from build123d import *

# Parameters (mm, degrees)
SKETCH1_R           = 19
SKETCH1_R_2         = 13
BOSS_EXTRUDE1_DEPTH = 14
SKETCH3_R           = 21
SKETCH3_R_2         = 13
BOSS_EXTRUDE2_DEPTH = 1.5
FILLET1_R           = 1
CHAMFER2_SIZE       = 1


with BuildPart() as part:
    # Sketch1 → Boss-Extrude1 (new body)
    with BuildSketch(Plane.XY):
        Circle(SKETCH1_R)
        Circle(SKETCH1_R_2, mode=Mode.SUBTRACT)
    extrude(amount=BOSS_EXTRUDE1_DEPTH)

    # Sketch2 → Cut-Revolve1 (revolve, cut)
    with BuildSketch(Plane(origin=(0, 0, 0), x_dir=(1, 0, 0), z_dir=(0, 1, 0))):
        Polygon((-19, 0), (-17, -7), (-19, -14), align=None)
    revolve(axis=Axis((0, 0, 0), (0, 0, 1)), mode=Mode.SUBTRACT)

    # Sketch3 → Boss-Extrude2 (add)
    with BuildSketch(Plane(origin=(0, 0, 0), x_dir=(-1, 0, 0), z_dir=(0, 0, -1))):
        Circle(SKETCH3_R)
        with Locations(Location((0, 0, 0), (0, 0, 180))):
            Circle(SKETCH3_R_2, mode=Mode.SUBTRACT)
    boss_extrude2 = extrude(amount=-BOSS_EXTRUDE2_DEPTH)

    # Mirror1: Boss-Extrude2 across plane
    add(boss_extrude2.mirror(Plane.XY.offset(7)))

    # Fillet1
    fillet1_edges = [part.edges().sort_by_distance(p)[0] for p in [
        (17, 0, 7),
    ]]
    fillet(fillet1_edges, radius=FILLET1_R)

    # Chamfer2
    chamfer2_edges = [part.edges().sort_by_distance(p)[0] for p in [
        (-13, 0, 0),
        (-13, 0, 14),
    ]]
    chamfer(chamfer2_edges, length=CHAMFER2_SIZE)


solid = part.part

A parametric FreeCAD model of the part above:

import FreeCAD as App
import Part
import Sketcher

V = App.Vector


def edges_at(feature, points):
    """Names of the edges that pass closest to the given points."""
    edges = feature.Shape.Edges
    near = lambda p: min(range(len(edges)), key=lambda i: edges[i].distToShape(Part.Vertex(*p))[0])
    return sorted({f"Edge{near(p) + 1}" for p in points})

doc = App.newDocument("Part")
body = doc.addObject("PartDesign::Body", "Body")

sketch1 = doc.addObject("Sketcher::SketchObject", "Sketch")
body.addObject(sketch1)
sketch1.AttachmentSupport = (doc.XY_Plane, [""])
sketch1.MapMode = "FlatFace"
sketch1.addGeometry([
    Part.Circle(V(0, 0, 0), V(0, 0, 1), 19),
    Part.Circle(V(0, 0, 0), V(0, 0, 1), 13),
], False)
sketch1.addConstraint([
    Sketcher.Constraint("Coincident", 0, 3, -1, 1),
    Sketcher.Constraint("Coincident", 1, 3, -1, 1),
    Sketcher.Constraint("Diameter", 0, 38.0),
    Sketcher.Constraint("Diameter", 1, 26.0),
])
pad1 = doc.addObject("PartDesign::Pad", "Pad")
body.addObject(pad1)
pad1.Profile = sketch1
pad1.Length = 14

sketch2 = doc.addObject("Sketcher::SketchObject", "Sketch001")
body.addObject(sketch2)
sketch2.AttachmentSupport = (doc.XZ_Plane, [""])
sketch2.MapMode = "FlatFace"
sketch2.addGeometry([
    Part.LineSegment(V(-17, 7, 0), V(-19, 0, 0)),
    Part.LineSegment(V(-19, 0, 0), V(-19, 14, 0)),
    Part.LineSegment(V(-19, 14, 0), V(-17, 7, 0)),
], False)
sketch2.addConstraint([
    Sketcher.Constraint("Coincident", 0, 2, 1, 1),
    Sketcher.Constraint("Coincident", 1, 2, 2, 1),
    Sketcher.Constraint("Coincident", 2, 2, 0, 1),
    Sketcher.Constraint("Vertical", 1),
    Sketcher.Constraint("PointOnObject", 0, 2, -1),
    Sketcher.Constraint("Equal", 0, 2),
    Sketcher.Constraint("DistanceY", 1, 1, 1, 2, 14.0),
    Sketcher.Constraint("DistanceX", 0, 2, -1, 1, 19.0),
    Sketcher.Constraint("DistanceX", 2, 2, -1, 1, 17.0),
])
groove = doc.addObject("PartDesign::Groove", "Groove")
body.addObject(groove)
groove.Profile = sketch2
groove.ReferenceAxis = (sketch2, ["V_Axis"])
groove.Angle = 360

sketch3 = doc.addObject("Sketcher::SketchObject", "Sketch002")
body.addObject(sketch3)
sketch3.AttachmentSupport = (doc.XY_Plane, [""])
sketch3.MapMode = "FlatFace"
sketch3.addGeometry([
    Part.Circle(V(0, 0, 0), V(0, 0, 1), 21),
    Part.Circle(V(0, 0, 0), V(0, 0, 1), 13),
], False)
sketch3.addConstraint([
    Sketcher.Constraint("Coincident", 0, 3, -1, 1),
    Sketcher.Constraint("Coincident", 1, 3, -1, 1),
    Sketcher.Constraint("Diameter", 0, 42.0),
    Sketcher.Constraint("Diameter", 1, 26.0),
])
pad2 = doc.addObject("PartDesign::Pad", "Pad001")
body.addObject(pad2)
pad2.Profile = sketch3
pad2.Length = 1.5
doc.recompute()

datumplane = doc.addObject("PartDesign::Plane", "DatumPlane")
body.addObject(datumplane)
datumplane.AttachmentSupport = (doc.XY_Plane, [""])
datumplane.MapMode = "FlatFace"
datumplane.AttachmentOffset = App.Placement(V(0, 0, 7), App.Rotation())
mirrored = doc.addObject("PartDesign::Mirrored", "Mirrored")
body.addObject(mirrored)
mirrored.Originals = [pad2]
mirrored.MirrorPlane = (datumplane, [""])
body.Tip = mirrored
doc.recompute()

fillet = doc.addObject("PartDesign::Fillet", "Fillet")
body.addObject(fillet)
fillet.Base = (mirrored, edges_at(mirrored, [(17, 0, 7)]))
fillet.Radius = 1
doc.recompute()

chamfer = doc.addObject("PartDesign::Chamfer", "Chamfer")
body.addObject(chamfer)
chamfer.Base = (fillet, edges_at(fillet, [(-13, 0, 0), (-13, 0, 14)]))
chamfer.Size = 1

doc.recompute()
